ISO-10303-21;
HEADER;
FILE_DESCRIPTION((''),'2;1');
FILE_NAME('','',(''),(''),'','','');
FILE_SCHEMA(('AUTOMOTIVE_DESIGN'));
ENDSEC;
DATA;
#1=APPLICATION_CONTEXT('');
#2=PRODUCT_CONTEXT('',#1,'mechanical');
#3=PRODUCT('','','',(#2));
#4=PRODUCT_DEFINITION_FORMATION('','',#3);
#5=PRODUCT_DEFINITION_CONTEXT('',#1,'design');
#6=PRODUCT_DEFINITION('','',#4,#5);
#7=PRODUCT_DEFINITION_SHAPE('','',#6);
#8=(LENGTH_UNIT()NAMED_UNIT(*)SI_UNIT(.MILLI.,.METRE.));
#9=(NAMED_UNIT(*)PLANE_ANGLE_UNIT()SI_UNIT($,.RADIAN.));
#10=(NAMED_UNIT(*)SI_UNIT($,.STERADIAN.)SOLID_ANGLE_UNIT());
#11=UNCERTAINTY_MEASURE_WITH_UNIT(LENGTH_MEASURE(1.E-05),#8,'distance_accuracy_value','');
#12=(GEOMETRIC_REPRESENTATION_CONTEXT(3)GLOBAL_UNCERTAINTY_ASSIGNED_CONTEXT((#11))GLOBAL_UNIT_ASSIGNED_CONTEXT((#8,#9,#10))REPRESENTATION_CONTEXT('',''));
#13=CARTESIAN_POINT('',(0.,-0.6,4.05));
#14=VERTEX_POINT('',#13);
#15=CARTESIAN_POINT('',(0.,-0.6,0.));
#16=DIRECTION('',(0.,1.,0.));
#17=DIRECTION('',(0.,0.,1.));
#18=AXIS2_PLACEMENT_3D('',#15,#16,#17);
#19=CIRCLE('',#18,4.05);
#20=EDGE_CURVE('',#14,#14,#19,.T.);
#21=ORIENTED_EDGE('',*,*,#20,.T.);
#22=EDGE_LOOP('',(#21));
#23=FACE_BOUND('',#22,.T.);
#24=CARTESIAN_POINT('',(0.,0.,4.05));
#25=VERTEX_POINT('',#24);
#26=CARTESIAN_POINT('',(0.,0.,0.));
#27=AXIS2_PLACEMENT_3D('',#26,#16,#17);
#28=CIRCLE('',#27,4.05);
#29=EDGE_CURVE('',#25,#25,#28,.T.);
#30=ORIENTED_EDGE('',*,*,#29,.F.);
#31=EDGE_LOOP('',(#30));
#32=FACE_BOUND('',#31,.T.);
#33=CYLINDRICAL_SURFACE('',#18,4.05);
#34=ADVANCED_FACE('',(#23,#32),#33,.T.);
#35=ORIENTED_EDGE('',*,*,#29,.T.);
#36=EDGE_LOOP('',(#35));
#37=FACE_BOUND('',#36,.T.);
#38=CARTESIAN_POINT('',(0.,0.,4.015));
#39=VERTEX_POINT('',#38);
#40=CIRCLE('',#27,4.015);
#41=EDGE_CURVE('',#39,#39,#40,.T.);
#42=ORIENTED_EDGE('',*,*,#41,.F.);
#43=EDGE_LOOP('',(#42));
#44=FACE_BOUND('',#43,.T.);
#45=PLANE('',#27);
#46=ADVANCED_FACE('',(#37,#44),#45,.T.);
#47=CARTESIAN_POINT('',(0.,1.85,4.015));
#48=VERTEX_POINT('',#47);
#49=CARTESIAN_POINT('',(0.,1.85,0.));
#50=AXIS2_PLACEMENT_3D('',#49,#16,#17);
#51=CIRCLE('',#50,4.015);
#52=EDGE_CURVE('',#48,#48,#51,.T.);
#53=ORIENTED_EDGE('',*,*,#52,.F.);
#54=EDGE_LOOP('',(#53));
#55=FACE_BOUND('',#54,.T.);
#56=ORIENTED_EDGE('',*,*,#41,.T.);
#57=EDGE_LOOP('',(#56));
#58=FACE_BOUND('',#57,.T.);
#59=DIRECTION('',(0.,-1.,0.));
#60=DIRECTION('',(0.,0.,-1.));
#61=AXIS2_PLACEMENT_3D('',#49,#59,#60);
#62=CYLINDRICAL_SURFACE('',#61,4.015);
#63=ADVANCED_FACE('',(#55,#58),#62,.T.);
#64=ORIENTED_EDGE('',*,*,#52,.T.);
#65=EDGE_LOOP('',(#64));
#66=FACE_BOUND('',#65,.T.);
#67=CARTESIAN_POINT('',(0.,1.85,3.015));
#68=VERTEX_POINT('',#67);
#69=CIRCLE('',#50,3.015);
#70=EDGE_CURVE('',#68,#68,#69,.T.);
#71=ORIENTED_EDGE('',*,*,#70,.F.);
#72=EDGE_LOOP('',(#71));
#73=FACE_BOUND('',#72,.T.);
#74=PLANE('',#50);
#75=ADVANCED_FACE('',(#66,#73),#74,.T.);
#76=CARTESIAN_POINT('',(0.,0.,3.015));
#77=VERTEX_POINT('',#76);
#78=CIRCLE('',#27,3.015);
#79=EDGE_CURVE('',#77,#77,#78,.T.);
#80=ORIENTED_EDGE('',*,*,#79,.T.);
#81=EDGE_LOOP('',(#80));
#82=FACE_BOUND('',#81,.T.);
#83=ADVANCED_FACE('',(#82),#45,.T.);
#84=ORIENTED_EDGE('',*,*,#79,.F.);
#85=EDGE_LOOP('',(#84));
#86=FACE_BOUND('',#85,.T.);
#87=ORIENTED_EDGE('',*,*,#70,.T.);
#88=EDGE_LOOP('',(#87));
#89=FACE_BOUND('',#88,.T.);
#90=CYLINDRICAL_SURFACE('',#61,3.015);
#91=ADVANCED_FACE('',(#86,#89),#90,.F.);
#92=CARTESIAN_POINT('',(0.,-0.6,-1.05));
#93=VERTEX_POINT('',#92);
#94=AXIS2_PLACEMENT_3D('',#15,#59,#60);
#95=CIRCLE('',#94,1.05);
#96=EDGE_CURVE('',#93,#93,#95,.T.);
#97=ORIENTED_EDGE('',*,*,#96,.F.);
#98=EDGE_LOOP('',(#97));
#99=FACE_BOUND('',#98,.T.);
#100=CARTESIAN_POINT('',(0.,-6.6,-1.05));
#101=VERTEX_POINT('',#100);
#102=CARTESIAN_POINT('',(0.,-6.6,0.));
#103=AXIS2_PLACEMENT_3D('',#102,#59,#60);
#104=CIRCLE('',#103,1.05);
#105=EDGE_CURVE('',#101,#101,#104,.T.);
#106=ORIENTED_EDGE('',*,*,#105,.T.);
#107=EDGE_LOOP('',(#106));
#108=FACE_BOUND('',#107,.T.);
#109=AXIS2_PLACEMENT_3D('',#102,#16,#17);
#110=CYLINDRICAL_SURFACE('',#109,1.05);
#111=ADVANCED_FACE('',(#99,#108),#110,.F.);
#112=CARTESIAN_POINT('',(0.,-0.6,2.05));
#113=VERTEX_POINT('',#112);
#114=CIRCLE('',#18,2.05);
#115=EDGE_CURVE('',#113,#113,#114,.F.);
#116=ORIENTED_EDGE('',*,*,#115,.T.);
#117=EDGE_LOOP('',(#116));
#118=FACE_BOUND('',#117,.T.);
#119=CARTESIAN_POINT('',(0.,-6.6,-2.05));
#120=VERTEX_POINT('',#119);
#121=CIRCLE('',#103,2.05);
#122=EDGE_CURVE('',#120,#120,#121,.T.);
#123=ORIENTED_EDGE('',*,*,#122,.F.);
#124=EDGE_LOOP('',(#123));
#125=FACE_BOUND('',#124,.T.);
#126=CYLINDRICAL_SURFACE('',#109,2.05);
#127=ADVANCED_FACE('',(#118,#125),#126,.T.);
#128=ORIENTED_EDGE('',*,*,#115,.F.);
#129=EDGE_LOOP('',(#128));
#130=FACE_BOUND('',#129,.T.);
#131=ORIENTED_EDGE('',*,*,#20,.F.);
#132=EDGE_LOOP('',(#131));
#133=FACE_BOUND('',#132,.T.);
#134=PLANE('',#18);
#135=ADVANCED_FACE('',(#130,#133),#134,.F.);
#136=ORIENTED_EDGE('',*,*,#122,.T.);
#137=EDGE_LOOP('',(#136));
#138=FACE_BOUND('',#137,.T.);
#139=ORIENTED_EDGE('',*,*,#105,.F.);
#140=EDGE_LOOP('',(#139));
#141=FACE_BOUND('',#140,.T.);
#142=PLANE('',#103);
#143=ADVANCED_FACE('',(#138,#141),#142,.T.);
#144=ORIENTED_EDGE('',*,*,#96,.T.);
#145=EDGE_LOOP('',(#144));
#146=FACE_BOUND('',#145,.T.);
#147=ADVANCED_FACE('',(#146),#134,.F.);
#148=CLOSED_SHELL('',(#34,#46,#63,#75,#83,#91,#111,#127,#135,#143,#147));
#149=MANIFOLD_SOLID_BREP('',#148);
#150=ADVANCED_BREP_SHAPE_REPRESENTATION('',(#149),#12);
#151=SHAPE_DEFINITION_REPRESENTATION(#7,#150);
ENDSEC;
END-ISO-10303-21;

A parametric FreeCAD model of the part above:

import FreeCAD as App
import Part
import Sketcher

V = App.Vector

doc = App.newDocument("Part")
body = doc.addObject("PartDesign::Body", "Body")

sketch1 = doc.addObject("Sketcher::SketchObject", "Sketch")
body.addObject(sketch1)
sketch1.AttachmentSupport = (doc.XZ_Plane, [""])
sketch1.MapMode = "FlatFace"
sketch1.addGeometry(Part.Circle(V(0, 0, 0), V(0, 0, 1), 4), False)
sketch1.addGeometry(Part.Circle(V(0, 0, 0), V(0, 0, 1), 3), False)
sketch1.addConstraint(Sketcher.Constraint("Coincident", 0, 3, -1, 1))
sketch1.addConstraint(Sketcher.Constraint("Coincident", 1, 3, -1, 1))
sketch1.addConstraint(Sketcher.Constraint("Diameter", 0, 8.03))
sketch1.addConstraint(Sketcher.Constraint("Diameter", 1, 6.03))
pad1 = doc.addObject("PartDesign::Pad", "Pad")
body.addObject(pad1)
pad1.Profile = sketch1
pad1.Length = 1.85
pad1.Reversed = True

sketch2 = doc.addObject("Sketcher::SketchObject", "Sketch001")
body.addObject(sketch2)
sketch2.AttachmentSupport = (doc.XZ_Plane, [""])
sketch2.MapMode = "FlatFace"
sketch2.addGeometry(Part.Circle(V(0, 0, 0), V(0, 0, 1), 4), False)
sketch2.addConstraint(Sketcher.Constraint("Coincident", 0, 3, -1, 1))
sketch2.addConstraint(Sketcher.Constraint("Diameter", 0, 8.1))
pad2 = doc.addObject("PartDesign::Pad", "Pad001")
body.addObject(pad2)
pad2.Profile = sketch2
pad2.Length = 0.6

sketch3 = doc.addObject("Sketcher::SketchObject", "Sketch002")
body.addObject(sketch3)
sketch3.AttachmentSupport = (doc.XZ_Plane, [""])
sketch3.MapMode = "FlatFace"
sketch3.AttachmentOffset = App.Placement(V(0, 0, 0.6), App.Rotation())
sketch3.addGeometry(Part.Circle(V(0, 0, 0), V(0, 0, 1), 2), False)
sketch3.addGeometry(Part.Circle(V(0, 0, 0), V(0, 0, 1), 1.1), False)
sketch3.addConstraint(Sketcher.Constraint("Coincident", 0, 3, -1, 1))
sketch3.addConstraint(Sketcher.Constraint("Coincident", 1, 3, -1, 1))
sketch3.addConstraint(Sketcher.Constraint("Diameter", 0, 4.1))
sketch3.addConstraint(Sketcher.Constraint("Diameter", 1, 2.1))
pad3 = doc.addObject("PartDesign::Pad", "Pad002")
body.addObject(pad3)
pad3.Profile = sketch3
pad3.Length = 6

doc.recompute()
